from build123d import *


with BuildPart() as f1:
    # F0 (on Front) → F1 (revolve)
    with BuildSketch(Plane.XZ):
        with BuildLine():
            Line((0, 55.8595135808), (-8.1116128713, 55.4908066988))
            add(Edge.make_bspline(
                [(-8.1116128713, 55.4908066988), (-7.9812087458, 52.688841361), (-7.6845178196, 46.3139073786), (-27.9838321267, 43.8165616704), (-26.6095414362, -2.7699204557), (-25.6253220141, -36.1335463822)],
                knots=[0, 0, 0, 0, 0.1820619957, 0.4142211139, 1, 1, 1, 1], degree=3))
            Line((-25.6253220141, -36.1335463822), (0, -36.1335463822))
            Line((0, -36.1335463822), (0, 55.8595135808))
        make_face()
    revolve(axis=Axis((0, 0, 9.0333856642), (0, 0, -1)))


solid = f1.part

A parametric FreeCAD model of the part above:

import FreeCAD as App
import Part
import Sketcher
from FreeCAD import Vector

doc = App.newDocument("Part")
body = doc.addObject("PartDesign::Body", "Body")

# Sketch on XZ plane
sketch1 = doc.addObject("Sketcher::SketchObject", "Sketch")
body.addObject(sketch1)
sketch1.AttachmentSupport = (doc.XZ_Plane, [""])
sketch1.MapMode = "FlatFace"
sketch1.addGeometry([
    Part.LineSegment(Vector(0, 55.859514, 0), Vector(-8.111613, 55.490807, 0)),
    Part.BSplineCurve([Vector(-8.111613, 55.490807, 0), Vector(-7.981209, 52.688841, 0), Vector(-7.684518, 46.313907, 0), Vector(-27.983832, 43.816562, 0), Vector(-26.609541, -2.76992, 0), Vector(-25.625322, -36.133546, 0)], [4, 1, 1, 4], [0, 0.182061996, 0.414221114, 1], False, 3, [1, 1, 1, 1, 1, 1], False),
    Part.LineSegment(Vector(-25.625322, -36.133546, 0), Vector(0, -36.133546, 0)),
    Part.LineSegment(Vector(0, -36.133546, 0), Vector(0, 55.859514, 0)),
], False)
sketch1.addConstraint([
    Sketcher.Constraint("Block", 1),
    Sketcher.Constraint("Coincident", 0, 2, 1, 1),
    Sketcher.Constraint("Coincident", 1, 2, 2, 1),
    Sketcher.Constraint("Coincident", 2, 2, 3, 1),
    Sketcher.Constraint("Coincident", 3, 2, 0, 1),
    Sketcher.Constraint("Horizontal", 2),
    Sketcher.Constraint("Vertical", 3),
    Sketcher.Constraint("PointOnObject", 2, 2, -2),
    Sketcher.Constraint("DistanceY", 3, 1, 3, 2, 91.99306),
])
revolution = doc.addObject("PartDesign::Revolution", "Revolution")
body.addObject(revolution)
revolution.Profile = sketch1
revolution.ReferenceAxis = (sketch1, ["V_Axis"])
revolution.Angle = 360

doc.recompute()
